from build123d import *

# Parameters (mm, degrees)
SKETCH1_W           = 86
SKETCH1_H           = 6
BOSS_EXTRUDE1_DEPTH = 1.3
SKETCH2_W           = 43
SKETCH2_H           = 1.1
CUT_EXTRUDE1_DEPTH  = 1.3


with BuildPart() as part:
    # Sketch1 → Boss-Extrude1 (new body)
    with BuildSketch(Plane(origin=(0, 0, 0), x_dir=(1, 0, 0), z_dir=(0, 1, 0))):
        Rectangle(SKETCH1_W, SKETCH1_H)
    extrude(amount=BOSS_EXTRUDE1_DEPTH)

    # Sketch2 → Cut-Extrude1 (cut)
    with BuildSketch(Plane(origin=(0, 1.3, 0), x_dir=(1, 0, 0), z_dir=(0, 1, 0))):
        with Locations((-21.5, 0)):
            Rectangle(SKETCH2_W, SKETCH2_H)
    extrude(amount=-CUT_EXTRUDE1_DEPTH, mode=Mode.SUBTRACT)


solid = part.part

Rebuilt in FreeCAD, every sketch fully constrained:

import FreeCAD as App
import Part
import Sketcher


def add_polygon(sketch, points):
    """Adds a closed chain of lines whose ends are joined by coincident constraints."""
    first, n = sketch.GeometryCount, len(points)
    for a, b in zip(points, points[1:] + points[:1]):
        sketch.addGeometry(Part.LineSegment(App.Vector(*a, 0), App.Vector(*b, 0)), False)
    for i in range(n):
        sketch.addConstraint(Sketcher.Constraint("Coincident", first + i, 2, first + (i + 1) % n, 1))

doc = App.newDocument("Part")
body = doc.addObject("PartDesign::Body", "Body")

# Sketch on XZ plane
sketch1 = doc.addObject("Sketcher::SketchObject", "Sketch")
body.addObject(sketch1)
sketch1.AttachmentSupport = (doc.XZ_Plane, [""])
sketch1.MapMode = "FlatFace"
add_polygon(sketch1, [(-43, -3), (-43, 3), (43, 3), (43, -3)])  # lines 0-3
sketch1.addConstraint([
    Sketcher.Constraint("Vertical", 0),
    Sketcher.Constraint("Horizontal", 1),
    Sketcher.Constraint("Vertical", 2),
    Sketcher.Constraint("Horizontal", 3),
    Sketcher.Constraint("Symmetric", 0, 2, 2, 2, -1, 1),
    Sketcher.Constraint("DistanceX", 1, 1, 1, 2, 86.0),
    Sketcher.Constraint("DistanceY", 0, 1, 0, 2, 6.0),
])
pad1 = doc.addObject("PartDesign::Pad", "Pad")
body.addObject(pad1)
pad1.Profile = sketch1
pad1.Length = 1.3
pad1.Reversed = True

# Sketch on XZ plane
sketch2 = doc.addObject("Sketcher::SketchObject", "Sketch001")
body.addObject(sketch2)
sketch2.AttachmentSupport = (doc.XZ_Plane, [""])
sketch2.MapMode = "FlatFace"
sketch2.AttachmentOffset = App.Placement(App.Vector(0, 0, -1.3), App.Rotation())
add_polygon(sketch2, [(-43, -0.6), (-43, 0.6), (0, 0.6), (0, -0.6)])  # lines 0-3
sketch2.addConstraint([
    Sketcher.Constraint("Vertical", 0),
    Sketcher.Constraint("Horizontal", 1),
    Sketcher.Constraint("Vertical", 2),
    Sketcher.Constraint("Horizontal", 3),
    Sketcher.Constraint("Symmetric", 1, 2, 2, 2, -1, 1),
    Sketcher.Constraint("DistanceX", 1, 1, 1, 2, 43.0),
    Sketcher.Constraint("DistanceY", 0, 1, 0, 2, 1.1),
])
pocket1 = doc.addObject("PartDesign::Pocket", "Pocket")
body.addObject(pocket1)
pocket1.Profile = sketch2
pocket1.Length = 1.3
pocket1.Reversed = True

doc.recompute()
